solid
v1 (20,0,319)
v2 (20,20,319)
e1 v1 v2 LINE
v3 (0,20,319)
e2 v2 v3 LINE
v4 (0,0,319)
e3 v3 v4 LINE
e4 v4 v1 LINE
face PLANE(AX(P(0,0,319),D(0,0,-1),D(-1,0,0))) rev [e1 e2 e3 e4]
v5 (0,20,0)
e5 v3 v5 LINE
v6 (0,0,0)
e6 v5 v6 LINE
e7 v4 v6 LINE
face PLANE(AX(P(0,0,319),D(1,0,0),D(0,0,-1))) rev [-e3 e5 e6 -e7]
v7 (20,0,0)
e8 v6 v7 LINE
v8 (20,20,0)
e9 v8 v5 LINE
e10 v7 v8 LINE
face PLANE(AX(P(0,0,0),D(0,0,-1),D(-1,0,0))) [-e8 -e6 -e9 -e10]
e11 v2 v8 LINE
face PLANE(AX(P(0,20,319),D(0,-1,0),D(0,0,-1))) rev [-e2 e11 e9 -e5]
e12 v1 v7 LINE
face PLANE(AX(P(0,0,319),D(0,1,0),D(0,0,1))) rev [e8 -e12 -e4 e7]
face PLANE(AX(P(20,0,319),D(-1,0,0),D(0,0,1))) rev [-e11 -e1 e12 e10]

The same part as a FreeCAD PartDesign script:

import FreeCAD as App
import Part
import Sketcher
Q = App.Units.Quantity


def add_polygon(sketch, points):
    """Adds a closed chain of lines whose ends are joined by coincident constraints."""
    first, n = sketch.GeometryCount, len(points)
    for a, b in zip(points, points[1:] + points[:1]):
        sketch.addGeometry(Part.LineSegment(App.Vector(*a, 0), App.Vector(*b, 0)), False)
    for i in range(n):
        sketch.addConstraint(Sketcher.Constraint("Coincident", first + i, 2, first + (i + 1) % n, 1))

doc = App.newDocument("Part")
body = doc.addObject("PartDesign::Body", "Body")

# Sketch on XY plane
sketch1 = body.newObject("Sketcher::SketchObject", "Sketch")
sketch1.AttachmentSupport = (doc.getObject("XY_Plane"), [""])
sketch1.MapMode = "FlatFace"
add_polygon(sketch1, [(0, 20), (0, 0), (20, 0), (20, 20)])  # lines 0-3
sketch1.addConstraint(Sketcher.Constraint("Vertical", 0))
sketch1.addConstraint(Sketcher.Constraint("Horizontal", 1))
sketch1.addConstraint(Sketcher.Constraint("Vertical", 2))
sketch1.addConstraint(Sketcher.Constraint("Horizontal", 3))
sketch1.addConstraint(Sketcher.Constraint("Coincident", 0, 2, -1, 1))
sketch1.addConstraint(Sketcher.Constraint("Equal", 3, 0))
sketch1.addConstraint(Sketcher.Constraint("DistanceX", 1, 1, 1, 2, Q("20 mm")))
pad1 = body.newObject("PartDesign::Pad", "Pad")
pad1.Profile = sketch1
pad1.Length = 319

doc.recompute()
